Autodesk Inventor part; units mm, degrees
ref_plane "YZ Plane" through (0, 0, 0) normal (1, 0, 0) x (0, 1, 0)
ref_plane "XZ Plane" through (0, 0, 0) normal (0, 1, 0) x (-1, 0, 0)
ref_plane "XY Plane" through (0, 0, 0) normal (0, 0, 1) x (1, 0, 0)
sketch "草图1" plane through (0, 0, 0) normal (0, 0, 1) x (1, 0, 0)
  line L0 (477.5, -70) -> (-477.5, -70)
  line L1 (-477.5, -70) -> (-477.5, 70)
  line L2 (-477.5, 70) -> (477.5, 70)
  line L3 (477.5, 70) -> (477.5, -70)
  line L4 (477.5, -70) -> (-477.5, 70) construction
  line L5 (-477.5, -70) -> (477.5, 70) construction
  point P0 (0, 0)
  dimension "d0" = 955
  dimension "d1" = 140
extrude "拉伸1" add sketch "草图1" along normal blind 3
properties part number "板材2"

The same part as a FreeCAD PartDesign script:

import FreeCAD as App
import Part
import Sketcher
Q = App.Units.Quantity

doc = App.newDocument("Part")
body = doc.addObject("PartDesign::Body", "Body")

sketch1 = doc.addObject("Sketcher::SketchObject", "Sketch")
body.addObject(sketch1)
sketch1.AttachmentSupport = (doc.XY_Plane, [""])
sketch1.MapMode = "FlatFace"
sketch1.addGeometry(Part.LineSegment(App.Vector(-478, -70, 0), App.Vector(478, -70, 0)), False)
sketch1.addGeometry(Part.LineSegment(App.Vector(478, -70, 0), App.Vector(478, 70, 0)), False)
sketch1.addGeometry(Part.LineSegment(App.Vector(478, 70, 0), App.Vector(-478, 70, 0)), False)
sketch1.addGeometry(Part.LineSegment(App.Vector(-478, 70, 0), App.Vector(-478, -70, 0)), False)
sketch1.addConstraint(Sketcher.Constraint("Coincident", 0, 2, 1, 1))
sketch1.addConstraint(Sketcher.Constraint("Coincident", 1, 2, 2, 1))
sketch1.addConstraint(Sketcher.Constraint("Coincident", 2, 2, 3, 1))
sketch1.addConstraint(Sketcher.Constraint("Coincident", 3, 2, 0, 1))
sketch1.addConstraint(Sketcher.Constraint("Horizontal", 0))
sketch1.addConstraint(Sketcher.Constraint("Vertical", 1))
sketch1.addConstraint(Sketcher.Constraint("Horizontal", 2))
sketch1.addConstraint(Sketcher.Constraint("Vertical", 3))
sketch1.addConstraint(Sketcher.Constraint("Symmetric", 0, 2, 2, 2, -1, 1))
sketch1.addConstraint(Sketcher.Constraint("DistanceX", 0, 1, 0, 2, Q("955 mm")))
sketch1.addConstraint(Sketcher.Constraint("DistanceY", 1, 1, 1, 2, Q("140 mm")))
pad1 = doc.addObject("PartDesign::Pad", "Pad")
body.addObject(pad1)
pad1.Profile = sketch1
pad1.Length = 3

doc.recompute()
